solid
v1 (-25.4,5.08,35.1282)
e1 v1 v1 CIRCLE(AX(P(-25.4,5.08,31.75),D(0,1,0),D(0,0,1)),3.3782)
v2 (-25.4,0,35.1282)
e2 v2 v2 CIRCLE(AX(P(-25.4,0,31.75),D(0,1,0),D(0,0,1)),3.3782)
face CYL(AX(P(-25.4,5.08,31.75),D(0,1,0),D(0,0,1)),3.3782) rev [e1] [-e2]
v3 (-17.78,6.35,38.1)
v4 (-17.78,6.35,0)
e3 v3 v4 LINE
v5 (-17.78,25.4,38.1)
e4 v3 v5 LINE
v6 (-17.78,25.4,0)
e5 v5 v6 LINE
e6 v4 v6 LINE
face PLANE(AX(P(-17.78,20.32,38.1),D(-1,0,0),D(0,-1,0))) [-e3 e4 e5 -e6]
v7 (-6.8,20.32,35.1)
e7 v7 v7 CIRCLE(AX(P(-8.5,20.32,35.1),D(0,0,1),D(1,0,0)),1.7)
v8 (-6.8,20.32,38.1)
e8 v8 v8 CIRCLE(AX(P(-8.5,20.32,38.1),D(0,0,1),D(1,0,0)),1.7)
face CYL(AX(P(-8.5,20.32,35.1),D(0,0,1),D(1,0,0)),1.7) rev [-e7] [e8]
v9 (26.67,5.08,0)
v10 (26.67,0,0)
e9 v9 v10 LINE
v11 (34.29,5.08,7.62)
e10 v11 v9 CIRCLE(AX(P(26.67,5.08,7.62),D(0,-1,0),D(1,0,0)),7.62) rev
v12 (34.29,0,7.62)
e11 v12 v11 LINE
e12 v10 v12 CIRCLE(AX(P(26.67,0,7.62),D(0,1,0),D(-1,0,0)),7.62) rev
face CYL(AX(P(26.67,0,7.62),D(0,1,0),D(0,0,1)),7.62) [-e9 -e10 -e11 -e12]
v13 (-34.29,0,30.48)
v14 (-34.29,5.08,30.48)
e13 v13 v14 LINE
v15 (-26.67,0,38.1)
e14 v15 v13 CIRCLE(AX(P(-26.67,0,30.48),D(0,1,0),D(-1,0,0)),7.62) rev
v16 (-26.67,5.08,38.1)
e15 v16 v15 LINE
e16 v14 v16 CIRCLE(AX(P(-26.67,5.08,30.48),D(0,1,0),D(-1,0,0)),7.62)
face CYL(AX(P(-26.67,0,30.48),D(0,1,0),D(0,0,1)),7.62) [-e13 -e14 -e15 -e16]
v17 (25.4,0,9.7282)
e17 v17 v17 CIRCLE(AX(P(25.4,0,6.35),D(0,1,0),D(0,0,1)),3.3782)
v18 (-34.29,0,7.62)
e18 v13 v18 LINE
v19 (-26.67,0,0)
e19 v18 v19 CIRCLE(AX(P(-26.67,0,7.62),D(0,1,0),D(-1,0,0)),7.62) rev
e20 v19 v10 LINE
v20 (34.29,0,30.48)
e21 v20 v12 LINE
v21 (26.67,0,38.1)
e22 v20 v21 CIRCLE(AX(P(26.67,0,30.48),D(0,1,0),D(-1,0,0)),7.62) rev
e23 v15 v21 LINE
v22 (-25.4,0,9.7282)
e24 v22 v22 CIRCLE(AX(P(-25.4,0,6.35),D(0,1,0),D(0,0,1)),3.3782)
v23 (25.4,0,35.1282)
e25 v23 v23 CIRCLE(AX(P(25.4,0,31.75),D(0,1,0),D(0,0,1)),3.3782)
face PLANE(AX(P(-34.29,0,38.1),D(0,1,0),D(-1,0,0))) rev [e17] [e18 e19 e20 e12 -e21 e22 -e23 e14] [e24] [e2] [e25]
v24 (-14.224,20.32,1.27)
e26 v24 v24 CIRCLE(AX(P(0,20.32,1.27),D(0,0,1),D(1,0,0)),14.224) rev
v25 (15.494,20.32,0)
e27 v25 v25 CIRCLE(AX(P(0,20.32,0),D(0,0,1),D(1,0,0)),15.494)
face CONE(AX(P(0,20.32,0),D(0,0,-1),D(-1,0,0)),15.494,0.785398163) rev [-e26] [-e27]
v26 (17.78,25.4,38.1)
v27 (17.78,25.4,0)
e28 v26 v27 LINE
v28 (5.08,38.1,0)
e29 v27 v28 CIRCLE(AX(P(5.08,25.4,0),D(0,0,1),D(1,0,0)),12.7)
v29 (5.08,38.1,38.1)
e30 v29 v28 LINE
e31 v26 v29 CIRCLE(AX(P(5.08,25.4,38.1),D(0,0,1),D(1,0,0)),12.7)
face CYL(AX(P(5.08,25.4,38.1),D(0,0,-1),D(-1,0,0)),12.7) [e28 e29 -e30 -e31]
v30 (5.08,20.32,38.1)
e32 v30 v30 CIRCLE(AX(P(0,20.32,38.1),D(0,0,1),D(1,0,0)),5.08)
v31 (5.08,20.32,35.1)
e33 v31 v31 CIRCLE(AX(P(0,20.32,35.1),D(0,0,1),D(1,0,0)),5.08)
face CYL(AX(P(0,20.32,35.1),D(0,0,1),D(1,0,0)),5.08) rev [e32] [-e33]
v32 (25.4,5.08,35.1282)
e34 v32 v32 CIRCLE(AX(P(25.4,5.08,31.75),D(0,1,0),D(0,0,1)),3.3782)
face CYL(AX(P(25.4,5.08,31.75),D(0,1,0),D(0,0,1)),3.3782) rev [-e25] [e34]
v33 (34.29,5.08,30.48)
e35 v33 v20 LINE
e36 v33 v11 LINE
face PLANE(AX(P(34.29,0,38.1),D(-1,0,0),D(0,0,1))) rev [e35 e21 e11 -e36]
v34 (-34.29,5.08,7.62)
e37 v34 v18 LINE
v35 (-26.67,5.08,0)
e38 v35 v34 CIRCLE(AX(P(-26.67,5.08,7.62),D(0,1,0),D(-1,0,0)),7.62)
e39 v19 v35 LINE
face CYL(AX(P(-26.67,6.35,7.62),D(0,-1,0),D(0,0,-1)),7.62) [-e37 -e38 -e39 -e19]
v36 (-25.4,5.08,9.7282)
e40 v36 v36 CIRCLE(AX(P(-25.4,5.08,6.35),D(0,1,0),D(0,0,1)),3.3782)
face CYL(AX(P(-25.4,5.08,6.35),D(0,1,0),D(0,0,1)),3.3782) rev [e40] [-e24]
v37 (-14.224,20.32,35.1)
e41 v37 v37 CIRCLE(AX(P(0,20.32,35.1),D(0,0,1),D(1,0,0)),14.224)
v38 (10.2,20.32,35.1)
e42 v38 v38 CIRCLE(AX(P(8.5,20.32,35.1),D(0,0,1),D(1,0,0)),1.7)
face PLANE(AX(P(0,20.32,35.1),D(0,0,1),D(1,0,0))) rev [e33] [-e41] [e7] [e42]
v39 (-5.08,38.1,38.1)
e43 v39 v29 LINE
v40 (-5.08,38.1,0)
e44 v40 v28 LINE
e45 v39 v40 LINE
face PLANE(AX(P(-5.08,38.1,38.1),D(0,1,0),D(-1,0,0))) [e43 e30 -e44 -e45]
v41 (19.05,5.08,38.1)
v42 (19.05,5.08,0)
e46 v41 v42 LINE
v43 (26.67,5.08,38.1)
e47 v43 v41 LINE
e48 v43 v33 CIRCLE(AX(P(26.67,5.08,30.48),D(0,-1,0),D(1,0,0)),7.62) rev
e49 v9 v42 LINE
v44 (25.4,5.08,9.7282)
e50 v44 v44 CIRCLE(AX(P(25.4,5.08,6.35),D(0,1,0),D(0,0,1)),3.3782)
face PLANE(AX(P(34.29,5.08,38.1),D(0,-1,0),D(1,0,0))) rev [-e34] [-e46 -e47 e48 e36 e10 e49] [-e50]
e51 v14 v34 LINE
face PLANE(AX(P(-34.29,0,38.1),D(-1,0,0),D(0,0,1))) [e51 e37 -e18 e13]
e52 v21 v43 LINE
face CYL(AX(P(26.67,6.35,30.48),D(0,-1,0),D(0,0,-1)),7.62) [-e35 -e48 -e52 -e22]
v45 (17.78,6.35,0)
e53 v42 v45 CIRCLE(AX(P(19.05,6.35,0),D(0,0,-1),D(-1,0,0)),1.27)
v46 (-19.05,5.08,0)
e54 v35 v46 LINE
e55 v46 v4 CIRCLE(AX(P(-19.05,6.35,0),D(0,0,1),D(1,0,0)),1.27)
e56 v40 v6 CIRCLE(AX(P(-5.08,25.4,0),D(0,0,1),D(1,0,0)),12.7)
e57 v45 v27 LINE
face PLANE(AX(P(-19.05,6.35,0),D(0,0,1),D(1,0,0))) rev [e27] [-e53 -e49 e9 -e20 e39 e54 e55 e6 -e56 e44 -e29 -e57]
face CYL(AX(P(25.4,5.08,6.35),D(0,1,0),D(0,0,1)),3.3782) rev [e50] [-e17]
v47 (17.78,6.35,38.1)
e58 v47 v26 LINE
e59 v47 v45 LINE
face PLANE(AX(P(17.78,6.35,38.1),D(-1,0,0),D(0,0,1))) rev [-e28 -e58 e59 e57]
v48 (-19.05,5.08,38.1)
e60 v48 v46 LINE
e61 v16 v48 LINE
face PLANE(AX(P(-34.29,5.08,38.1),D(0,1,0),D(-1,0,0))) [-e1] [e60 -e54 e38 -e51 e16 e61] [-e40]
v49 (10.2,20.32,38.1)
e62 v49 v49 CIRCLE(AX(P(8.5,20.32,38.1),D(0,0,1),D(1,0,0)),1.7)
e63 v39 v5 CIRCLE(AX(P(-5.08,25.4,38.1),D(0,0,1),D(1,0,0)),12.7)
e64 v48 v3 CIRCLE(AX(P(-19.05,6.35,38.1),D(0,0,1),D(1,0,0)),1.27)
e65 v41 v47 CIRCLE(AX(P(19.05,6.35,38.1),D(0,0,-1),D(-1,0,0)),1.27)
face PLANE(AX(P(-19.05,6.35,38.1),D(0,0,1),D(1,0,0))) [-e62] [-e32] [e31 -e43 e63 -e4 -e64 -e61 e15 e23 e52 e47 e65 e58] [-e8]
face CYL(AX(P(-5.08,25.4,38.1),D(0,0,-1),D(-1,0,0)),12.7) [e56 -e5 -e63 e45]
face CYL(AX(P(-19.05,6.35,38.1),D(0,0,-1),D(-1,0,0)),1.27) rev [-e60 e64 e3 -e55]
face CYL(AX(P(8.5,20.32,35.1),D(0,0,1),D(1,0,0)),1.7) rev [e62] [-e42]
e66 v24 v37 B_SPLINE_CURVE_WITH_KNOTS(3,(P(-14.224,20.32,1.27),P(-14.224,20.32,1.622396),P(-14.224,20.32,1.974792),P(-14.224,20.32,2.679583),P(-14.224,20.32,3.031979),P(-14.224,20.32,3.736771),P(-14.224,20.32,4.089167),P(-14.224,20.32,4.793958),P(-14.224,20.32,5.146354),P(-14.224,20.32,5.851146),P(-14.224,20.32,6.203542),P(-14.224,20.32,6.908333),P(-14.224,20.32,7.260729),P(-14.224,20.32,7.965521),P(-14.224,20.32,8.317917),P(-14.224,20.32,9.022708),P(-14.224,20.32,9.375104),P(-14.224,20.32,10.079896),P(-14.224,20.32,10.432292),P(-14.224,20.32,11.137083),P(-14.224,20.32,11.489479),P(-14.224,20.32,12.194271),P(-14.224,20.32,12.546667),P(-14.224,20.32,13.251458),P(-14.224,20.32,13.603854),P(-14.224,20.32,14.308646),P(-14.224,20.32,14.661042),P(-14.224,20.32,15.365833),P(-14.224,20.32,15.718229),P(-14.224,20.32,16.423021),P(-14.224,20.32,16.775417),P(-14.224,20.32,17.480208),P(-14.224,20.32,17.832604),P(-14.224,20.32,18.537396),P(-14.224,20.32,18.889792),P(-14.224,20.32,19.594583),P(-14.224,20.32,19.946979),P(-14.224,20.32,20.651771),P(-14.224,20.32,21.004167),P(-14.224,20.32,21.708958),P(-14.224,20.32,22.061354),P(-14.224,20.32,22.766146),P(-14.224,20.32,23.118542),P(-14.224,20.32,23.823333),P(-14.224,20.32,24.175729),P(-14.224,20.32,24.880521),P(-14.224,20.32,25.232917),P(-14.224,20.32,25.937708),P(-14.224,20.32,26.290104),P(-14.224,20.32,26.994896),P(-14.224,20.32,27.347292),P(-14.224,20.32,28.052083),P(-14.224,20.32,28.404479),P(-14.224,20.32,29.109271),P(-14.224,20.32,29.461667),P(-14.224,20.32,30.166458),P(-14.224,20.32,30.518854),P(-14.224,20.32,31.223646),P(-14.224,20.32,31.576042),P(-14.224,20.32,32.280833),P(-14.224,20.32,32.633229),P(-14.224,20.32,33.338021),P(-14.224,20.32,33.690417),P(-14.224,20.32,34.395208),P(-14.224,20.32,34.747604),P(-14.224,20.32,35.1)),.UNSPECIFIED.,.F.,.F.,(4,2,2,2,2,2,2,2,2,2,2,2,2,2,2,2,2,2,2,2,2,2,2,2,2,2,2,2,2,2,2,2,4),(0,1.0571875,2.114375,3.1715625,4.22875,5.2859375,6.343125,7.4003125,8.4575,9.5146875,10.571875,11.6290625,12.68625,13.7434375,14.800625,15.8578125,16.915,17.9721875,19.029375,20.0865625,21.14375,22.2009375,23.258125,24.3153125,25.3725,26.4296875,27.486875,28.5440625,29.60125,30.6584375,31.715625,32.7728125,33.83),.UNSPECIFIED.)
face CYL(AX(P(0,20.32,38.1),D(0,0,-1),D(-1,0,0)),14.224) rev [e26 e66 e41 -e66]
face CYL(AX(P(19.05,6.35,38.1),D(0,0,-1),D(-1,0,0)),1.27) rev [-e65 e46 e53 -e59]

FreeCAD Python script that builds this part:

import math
import FreeCAD as App
import Part
import Sketcher

V = App.Vector
Q = App.Units.Quantity


def edges_at(feature, points):
    """Names of the edges that pass closest to the given points."""
    edges = feature.Shape.Edges
    near = lambda p: min(range(len(edges)), key=lambda i: edges[i].distToShape(Part.Vertex(*p))[0])
    return sorted({f"Edge{near(p) + 1}" for p in points})

doc = App.newDocument("Part")
params = doc.addObject("Spreadsheet::Sheet", "Params")
for row, (alias, value) in enumerate([
    ("sketch1_radius", "0.5 in"),
    ("sketch1_diameter", "1.12 in"),
    ("sketch1_radius2", "0.05 in"),
    ("sketch1_width", "2.7 in"),
    ("sketch1_width2", "0.6 in"),
    ("pad1_length", "1.5 in"),
    ("sketch2_diameter", "0.266 in"),
    ("hole_diameter", "0.266 in"),
    ("sketch3_diameter", "0.4 in"),
    ("pad2_length", "3 mm"),
    ("fillet_radius", "0.3 in"),
    ("chamfer_size", "0.05 in"),
], start=1):
    params.set(f"A{row}", alias)
    params.set(f"B{row}", "=" + value)
    params.setAlias(f"B{row}", alias)

body = doc.addObject("PartDesign::Body", "Body")

# Sketch on XY plane
sketch1 = doc.addObject("Sketcher::SketchObject", "Sketch")
body.addObject(sketch1)
sketch1.AttachmentSupport = (doc.XY_Plane, [""])
sketch1.MapMode = "FlatFace"
sketch1.addGeometry([
    Part.LineSegment(V(-34.3, 0, 0), V(34.3, 0, 0)),  # 0
    Part.LineSegment(V(34.3, 0, 0), V(34.3, 5.1, 0)),  # 1
    Part.LineSegment(V(34.3, 5.1, 0), V(19.1, 5.1, 0)),  # 2
    Part.ArcOfCircle(Part.Circle(V(19.1, 6.3, 0), V(0, 0, 1), 1.3), math.radians(180), math.radians(270)),  # 3
    Part.LineSegment(V(17.8, 6.3, 0), V(17.8, 25.4, 0)),  # 4
    Part.ArcOfCircle(Part.Circle(V(5.1, 25.4, 0), V(0, 0, 1), 12.7), math.radians(0), math.radians(90)),  # 5
    Part.LineSegment(V(5.1, 38.1, 0), V(-5.1, 38.1, 0)),  # 6
    Part.ArcOfCircle(Part.Circle(V(-5.1, 25.4, 0), V(0, 0, 1), 12.7), math.radians(90), math.radians(180)),  # 7
    Part.LineSegment(V(-17.8, 25.4, 0), V(-17.8, 6.3, 0)),  # 8
    Part.ArcOfCircle(Part.Circle(V(-19.1, 6.3, 0), V(0, 0, 1), 1.3), math.radians(-90), math.radians(0)),  # 9
    Part.LineSegment(V(-19.1, 5.1, 0), V(-34.3, 5.1, 0)),  # 10
    Part.LineSegment(V(-34.3, 5.1, 0), V(-34.3, 0, 0)),  # 11
    Part.Circle(V(0, 20.3, 0), V(0, 0, 1), 14.2),  # 12
], False)
sketch1.addConstraint([
    Sketcher.Constraint("Coincident", 0, 2, 1, 1),
    Sketcher.Constraint("Coincident", 1, 2, 2, 1),
    Sketcher.Constraint("Tangent", 2, 2, 3, 2),
    Sketcher.Constraint("Tangent", 3, 1, 4, 1),
    Sketcher.Constraint("Tangent", 4, 2, 5, 1),
    Sketcher.Constraint("Tangent", 5, 2, 6, 1),
    Sketcher.Constraint("Tangent", 6, 2, 7, 1),
    Sketcher.Constraint("Tangent", 7, 2, 8, 1),
    Sketcher.Constraint("Tangent", 8, 2, 9, 2),
    Sketcher.Constraint("Tangent", 9, 1, 10, 1),
    Sketcher.Constraint("Coincident", 10, 2, 11, 1),
    Sketcher.Constraint("Coincident", 11, 2, 0, 1),
    Sketcher.Constraint("Horizontal", 0),
    Sketcher.Constraint("Vertical", 1),
    Sketcher.Constraint("Horizontal", 2),
    Sketcher.Constraint("Vertical", 4),
    Sketcher.Constraint("Horizontal", 6),
    Sketcher.Constraint("Vertical", 8),
    Sketcher.Constraint("Horizontal", 10),
    Sketcher.Constraint("Vertical", 11),
    Sketcher.Constraint("Equal", 5, 7),
    Sketcher.Constraint("Equal", 3, 9),
    Sketcher.Constraint("Symmetric", 0, 2, 11, 2, -1, 1),
    Sketcher.Constraint("Symmetric", 3, 3, 9, 3, -2),
    Sketcher.Constraint("PointOnObject", 12, 3, -2),
    Sketcher.Constraint("Radius", 5, Q("0.5 in")),
    Sketcher.Constraint("Diameter", 12, Q("1.12 in")),
    Sketcher.Constraint("Radius", 3, Q("0.05 in")),
    Sketcher.Constraint("DistanceX", 0, 1, 0, 2, Q("2.7 in")),
    Sketcher.Constraint("DistanceX", 2, 2, 2, 1, Q("0.6 in")),
    Sketcher.Constraint("DistanceY", 1, 1, 1, 2, Q("0.2 in")),
    Sketcher.Constraint("DistanceY", -1, 1, 5, 3, Q("1 in")),
    Sketcher.Constraint("DistanceY", -1, 1, 12, 3, Q("0.8 in")),
])
sketch1.setExpression("Constraints[25]", "Params.sketch1_radius")
sketch1.setExpression("Constraints[26]", "Params.sketch1_diameter")
sketch1.setExpression("Constraints[27]", "Params.sketch1_radius2")
sketch1.setExpression("Constraints[28]", "Params.sketch1_width")
sketch1.setExpression("Constraints[29]", "Params.sketch1_width2")
pad1 = doc.addObject("PartDesign::Pad", "Pad")
body.addObject(pad1)
pad1.Profile = sketch1
pad1.setExpression("Length", "Params.pad1_length")

# Sketch on XZ plane
sketch2 = doc.addObject("Sketcher::SketchObject", "Sketch001")
body.addObject(sketch2)
sketch2.AttachmentSupport = (doc.XZ_Plane, [""])
sketch2.MapMode = "FlatFace"
sketch2.AttachmentOffset = App.Placement(V(0, 0, -0.2 * 25.4), App.Rotation())
sketch2.addGeometry([
    Part.Circle(V(-25.4, 6.3, 0), V(0, 0, 1), 3.4),
    Part.Circle(V(25.4, 31.8, 0), V(0, 0, 1), 3.4),
    Part.Circle(V(-25.4, 31.8, 0), V(0, 0, 1), 3.4),
    Part.Circle(V(25.4, 6.3, 0), V(0, 0, 1), 3.4),
], False)
sketch2.addConstraint([
    Sketcher.Constraint("Equal", 0, 1),
    Sketcher.Constraint("Equal", 1, 2),
    Sketcher.Constraint("Equal", 2, 3),
    Sketcher.Constraint("Symmetric", 1, 3, 2, 3, -2),
    Sketcher.Constraint("Symmetric", 0, 3, 3, 3, -2),
    Sketcher.Constraint("Vertical", 0, 3, 2, 3),
    Sketcher.Constraint("Diameter", 0, Q("0.266 in")),
    Sketcher.Constraint("DistanceX", 0, 3, -1, 1, Q("1 in")),
    Sketcher.Constraint("DistanceY", 0, 3, 1, 3, Q("1 in")),
    Sketcher.Constraint("DistanceY", -1, 1, 0, 3, Q("0.25 in")),
])
sketch2.setExpression("Constraints[6]", "Params.sketch2_diameter")
doc.recompute()
hole = doc.addObject("PartDesign::Hole", "Hole")
body.addObject(hole)
hole.Profile = sketch2
hole.ThreadType = "None"
hole.setExpression("Diameter", "Params.hole_diameter")
hole.DepthType = "ThroughAll"
hole.Reversed = True

# Sketch on XY plane
sketch3 = doc.addObject("Sketcher::SketchObject", "Sketch002")
body.addObject(sketch3)
sketch3.AttachmentSupport = (doc.XY_Plane, [""])
sketch3.MapMode = "FlatFace"
sketch3.AttachmentOffset = App.Placement(V(0, 0, 1.5 * 25.4), App.Rotation())
sketch3.addGeometry([
    Part.Circle(V(0, 20.3, 0), V(0, 0, 1), 16.6),
    Part.Circle(V(-8.5, 20.3, 0), V(0, 0, 1), 1.7),
    Part.Circle(V(0, 20.3, 0), V(0, 0, 1), 5.1),
    Part.Circle(V(8.5, 20.3, 0), V(0, 0, 1), 1.7),
], False)
sketch3.addConstraint([
    Sketcher.Constraint("Coincident", 2, 3, 0, 3),
    Sketcher.Constraint("Equal", 1, 3),
    Sketcher.Constraint("Symmetric", 1, 3, 3, 3, -2),
    Sketcher.Constraint("PointOnObject", 0, 3, -2),
    Sketcher.Constraint("Horizontal", 0, 3, 1, 3),
    Sketcher.Constraint("Diameter", 2, Q("0.4 in")),
    Sketcher.Constraint("DistanceY", -1, 1, 0, 3, Q("0.8 in")),
    Sketcher.Constraint("Diameter", 1, Q("3.4 mm")),
    Sketcher.Constraint("Diameter", 0, Q("33.274363 mm")),
    Sketcher.Constraint("DistanceX", 1, 3, -1, 1, Q("8.5 mm")),
])
sketch3.setExpression("Constraints[5]", "Params.sketch3_diameter")
pad2 = doc.addObject("PartDesign::Pad", "Pad001")
body.addObject(pad2)
pad2.Profile = sketch3
pad2.setExpression("Length", "Params.pad2_length")
pad2.Reversed = True
doc.recompute()

fillet = doc.addObject("PartDesign::Fillet", "Fillet")
body.addObject(fillet)
fillet.Base = (pad2, edges_at(pad2, [
    (-34.29, 2.54, 0),
    (34.29, 2.54, 0),
    (34.29, 2.54, 38.1),
    (-34.29, 2.54, 38.1),
]))
fillet.setExpression("Radius", "Params.fillet_radius")
doc.recompute()

chamfer = doc.addObject("PartDesign::Chamfer", "Chamfer")
body.addObject(chamfer)
chamfer.Base = (fillet, edges_at(fillet, [(14.224, 20.32, 0)]))
chamfer.setExpression("Size", "Params.chamfer_size")

doc.recompute()
